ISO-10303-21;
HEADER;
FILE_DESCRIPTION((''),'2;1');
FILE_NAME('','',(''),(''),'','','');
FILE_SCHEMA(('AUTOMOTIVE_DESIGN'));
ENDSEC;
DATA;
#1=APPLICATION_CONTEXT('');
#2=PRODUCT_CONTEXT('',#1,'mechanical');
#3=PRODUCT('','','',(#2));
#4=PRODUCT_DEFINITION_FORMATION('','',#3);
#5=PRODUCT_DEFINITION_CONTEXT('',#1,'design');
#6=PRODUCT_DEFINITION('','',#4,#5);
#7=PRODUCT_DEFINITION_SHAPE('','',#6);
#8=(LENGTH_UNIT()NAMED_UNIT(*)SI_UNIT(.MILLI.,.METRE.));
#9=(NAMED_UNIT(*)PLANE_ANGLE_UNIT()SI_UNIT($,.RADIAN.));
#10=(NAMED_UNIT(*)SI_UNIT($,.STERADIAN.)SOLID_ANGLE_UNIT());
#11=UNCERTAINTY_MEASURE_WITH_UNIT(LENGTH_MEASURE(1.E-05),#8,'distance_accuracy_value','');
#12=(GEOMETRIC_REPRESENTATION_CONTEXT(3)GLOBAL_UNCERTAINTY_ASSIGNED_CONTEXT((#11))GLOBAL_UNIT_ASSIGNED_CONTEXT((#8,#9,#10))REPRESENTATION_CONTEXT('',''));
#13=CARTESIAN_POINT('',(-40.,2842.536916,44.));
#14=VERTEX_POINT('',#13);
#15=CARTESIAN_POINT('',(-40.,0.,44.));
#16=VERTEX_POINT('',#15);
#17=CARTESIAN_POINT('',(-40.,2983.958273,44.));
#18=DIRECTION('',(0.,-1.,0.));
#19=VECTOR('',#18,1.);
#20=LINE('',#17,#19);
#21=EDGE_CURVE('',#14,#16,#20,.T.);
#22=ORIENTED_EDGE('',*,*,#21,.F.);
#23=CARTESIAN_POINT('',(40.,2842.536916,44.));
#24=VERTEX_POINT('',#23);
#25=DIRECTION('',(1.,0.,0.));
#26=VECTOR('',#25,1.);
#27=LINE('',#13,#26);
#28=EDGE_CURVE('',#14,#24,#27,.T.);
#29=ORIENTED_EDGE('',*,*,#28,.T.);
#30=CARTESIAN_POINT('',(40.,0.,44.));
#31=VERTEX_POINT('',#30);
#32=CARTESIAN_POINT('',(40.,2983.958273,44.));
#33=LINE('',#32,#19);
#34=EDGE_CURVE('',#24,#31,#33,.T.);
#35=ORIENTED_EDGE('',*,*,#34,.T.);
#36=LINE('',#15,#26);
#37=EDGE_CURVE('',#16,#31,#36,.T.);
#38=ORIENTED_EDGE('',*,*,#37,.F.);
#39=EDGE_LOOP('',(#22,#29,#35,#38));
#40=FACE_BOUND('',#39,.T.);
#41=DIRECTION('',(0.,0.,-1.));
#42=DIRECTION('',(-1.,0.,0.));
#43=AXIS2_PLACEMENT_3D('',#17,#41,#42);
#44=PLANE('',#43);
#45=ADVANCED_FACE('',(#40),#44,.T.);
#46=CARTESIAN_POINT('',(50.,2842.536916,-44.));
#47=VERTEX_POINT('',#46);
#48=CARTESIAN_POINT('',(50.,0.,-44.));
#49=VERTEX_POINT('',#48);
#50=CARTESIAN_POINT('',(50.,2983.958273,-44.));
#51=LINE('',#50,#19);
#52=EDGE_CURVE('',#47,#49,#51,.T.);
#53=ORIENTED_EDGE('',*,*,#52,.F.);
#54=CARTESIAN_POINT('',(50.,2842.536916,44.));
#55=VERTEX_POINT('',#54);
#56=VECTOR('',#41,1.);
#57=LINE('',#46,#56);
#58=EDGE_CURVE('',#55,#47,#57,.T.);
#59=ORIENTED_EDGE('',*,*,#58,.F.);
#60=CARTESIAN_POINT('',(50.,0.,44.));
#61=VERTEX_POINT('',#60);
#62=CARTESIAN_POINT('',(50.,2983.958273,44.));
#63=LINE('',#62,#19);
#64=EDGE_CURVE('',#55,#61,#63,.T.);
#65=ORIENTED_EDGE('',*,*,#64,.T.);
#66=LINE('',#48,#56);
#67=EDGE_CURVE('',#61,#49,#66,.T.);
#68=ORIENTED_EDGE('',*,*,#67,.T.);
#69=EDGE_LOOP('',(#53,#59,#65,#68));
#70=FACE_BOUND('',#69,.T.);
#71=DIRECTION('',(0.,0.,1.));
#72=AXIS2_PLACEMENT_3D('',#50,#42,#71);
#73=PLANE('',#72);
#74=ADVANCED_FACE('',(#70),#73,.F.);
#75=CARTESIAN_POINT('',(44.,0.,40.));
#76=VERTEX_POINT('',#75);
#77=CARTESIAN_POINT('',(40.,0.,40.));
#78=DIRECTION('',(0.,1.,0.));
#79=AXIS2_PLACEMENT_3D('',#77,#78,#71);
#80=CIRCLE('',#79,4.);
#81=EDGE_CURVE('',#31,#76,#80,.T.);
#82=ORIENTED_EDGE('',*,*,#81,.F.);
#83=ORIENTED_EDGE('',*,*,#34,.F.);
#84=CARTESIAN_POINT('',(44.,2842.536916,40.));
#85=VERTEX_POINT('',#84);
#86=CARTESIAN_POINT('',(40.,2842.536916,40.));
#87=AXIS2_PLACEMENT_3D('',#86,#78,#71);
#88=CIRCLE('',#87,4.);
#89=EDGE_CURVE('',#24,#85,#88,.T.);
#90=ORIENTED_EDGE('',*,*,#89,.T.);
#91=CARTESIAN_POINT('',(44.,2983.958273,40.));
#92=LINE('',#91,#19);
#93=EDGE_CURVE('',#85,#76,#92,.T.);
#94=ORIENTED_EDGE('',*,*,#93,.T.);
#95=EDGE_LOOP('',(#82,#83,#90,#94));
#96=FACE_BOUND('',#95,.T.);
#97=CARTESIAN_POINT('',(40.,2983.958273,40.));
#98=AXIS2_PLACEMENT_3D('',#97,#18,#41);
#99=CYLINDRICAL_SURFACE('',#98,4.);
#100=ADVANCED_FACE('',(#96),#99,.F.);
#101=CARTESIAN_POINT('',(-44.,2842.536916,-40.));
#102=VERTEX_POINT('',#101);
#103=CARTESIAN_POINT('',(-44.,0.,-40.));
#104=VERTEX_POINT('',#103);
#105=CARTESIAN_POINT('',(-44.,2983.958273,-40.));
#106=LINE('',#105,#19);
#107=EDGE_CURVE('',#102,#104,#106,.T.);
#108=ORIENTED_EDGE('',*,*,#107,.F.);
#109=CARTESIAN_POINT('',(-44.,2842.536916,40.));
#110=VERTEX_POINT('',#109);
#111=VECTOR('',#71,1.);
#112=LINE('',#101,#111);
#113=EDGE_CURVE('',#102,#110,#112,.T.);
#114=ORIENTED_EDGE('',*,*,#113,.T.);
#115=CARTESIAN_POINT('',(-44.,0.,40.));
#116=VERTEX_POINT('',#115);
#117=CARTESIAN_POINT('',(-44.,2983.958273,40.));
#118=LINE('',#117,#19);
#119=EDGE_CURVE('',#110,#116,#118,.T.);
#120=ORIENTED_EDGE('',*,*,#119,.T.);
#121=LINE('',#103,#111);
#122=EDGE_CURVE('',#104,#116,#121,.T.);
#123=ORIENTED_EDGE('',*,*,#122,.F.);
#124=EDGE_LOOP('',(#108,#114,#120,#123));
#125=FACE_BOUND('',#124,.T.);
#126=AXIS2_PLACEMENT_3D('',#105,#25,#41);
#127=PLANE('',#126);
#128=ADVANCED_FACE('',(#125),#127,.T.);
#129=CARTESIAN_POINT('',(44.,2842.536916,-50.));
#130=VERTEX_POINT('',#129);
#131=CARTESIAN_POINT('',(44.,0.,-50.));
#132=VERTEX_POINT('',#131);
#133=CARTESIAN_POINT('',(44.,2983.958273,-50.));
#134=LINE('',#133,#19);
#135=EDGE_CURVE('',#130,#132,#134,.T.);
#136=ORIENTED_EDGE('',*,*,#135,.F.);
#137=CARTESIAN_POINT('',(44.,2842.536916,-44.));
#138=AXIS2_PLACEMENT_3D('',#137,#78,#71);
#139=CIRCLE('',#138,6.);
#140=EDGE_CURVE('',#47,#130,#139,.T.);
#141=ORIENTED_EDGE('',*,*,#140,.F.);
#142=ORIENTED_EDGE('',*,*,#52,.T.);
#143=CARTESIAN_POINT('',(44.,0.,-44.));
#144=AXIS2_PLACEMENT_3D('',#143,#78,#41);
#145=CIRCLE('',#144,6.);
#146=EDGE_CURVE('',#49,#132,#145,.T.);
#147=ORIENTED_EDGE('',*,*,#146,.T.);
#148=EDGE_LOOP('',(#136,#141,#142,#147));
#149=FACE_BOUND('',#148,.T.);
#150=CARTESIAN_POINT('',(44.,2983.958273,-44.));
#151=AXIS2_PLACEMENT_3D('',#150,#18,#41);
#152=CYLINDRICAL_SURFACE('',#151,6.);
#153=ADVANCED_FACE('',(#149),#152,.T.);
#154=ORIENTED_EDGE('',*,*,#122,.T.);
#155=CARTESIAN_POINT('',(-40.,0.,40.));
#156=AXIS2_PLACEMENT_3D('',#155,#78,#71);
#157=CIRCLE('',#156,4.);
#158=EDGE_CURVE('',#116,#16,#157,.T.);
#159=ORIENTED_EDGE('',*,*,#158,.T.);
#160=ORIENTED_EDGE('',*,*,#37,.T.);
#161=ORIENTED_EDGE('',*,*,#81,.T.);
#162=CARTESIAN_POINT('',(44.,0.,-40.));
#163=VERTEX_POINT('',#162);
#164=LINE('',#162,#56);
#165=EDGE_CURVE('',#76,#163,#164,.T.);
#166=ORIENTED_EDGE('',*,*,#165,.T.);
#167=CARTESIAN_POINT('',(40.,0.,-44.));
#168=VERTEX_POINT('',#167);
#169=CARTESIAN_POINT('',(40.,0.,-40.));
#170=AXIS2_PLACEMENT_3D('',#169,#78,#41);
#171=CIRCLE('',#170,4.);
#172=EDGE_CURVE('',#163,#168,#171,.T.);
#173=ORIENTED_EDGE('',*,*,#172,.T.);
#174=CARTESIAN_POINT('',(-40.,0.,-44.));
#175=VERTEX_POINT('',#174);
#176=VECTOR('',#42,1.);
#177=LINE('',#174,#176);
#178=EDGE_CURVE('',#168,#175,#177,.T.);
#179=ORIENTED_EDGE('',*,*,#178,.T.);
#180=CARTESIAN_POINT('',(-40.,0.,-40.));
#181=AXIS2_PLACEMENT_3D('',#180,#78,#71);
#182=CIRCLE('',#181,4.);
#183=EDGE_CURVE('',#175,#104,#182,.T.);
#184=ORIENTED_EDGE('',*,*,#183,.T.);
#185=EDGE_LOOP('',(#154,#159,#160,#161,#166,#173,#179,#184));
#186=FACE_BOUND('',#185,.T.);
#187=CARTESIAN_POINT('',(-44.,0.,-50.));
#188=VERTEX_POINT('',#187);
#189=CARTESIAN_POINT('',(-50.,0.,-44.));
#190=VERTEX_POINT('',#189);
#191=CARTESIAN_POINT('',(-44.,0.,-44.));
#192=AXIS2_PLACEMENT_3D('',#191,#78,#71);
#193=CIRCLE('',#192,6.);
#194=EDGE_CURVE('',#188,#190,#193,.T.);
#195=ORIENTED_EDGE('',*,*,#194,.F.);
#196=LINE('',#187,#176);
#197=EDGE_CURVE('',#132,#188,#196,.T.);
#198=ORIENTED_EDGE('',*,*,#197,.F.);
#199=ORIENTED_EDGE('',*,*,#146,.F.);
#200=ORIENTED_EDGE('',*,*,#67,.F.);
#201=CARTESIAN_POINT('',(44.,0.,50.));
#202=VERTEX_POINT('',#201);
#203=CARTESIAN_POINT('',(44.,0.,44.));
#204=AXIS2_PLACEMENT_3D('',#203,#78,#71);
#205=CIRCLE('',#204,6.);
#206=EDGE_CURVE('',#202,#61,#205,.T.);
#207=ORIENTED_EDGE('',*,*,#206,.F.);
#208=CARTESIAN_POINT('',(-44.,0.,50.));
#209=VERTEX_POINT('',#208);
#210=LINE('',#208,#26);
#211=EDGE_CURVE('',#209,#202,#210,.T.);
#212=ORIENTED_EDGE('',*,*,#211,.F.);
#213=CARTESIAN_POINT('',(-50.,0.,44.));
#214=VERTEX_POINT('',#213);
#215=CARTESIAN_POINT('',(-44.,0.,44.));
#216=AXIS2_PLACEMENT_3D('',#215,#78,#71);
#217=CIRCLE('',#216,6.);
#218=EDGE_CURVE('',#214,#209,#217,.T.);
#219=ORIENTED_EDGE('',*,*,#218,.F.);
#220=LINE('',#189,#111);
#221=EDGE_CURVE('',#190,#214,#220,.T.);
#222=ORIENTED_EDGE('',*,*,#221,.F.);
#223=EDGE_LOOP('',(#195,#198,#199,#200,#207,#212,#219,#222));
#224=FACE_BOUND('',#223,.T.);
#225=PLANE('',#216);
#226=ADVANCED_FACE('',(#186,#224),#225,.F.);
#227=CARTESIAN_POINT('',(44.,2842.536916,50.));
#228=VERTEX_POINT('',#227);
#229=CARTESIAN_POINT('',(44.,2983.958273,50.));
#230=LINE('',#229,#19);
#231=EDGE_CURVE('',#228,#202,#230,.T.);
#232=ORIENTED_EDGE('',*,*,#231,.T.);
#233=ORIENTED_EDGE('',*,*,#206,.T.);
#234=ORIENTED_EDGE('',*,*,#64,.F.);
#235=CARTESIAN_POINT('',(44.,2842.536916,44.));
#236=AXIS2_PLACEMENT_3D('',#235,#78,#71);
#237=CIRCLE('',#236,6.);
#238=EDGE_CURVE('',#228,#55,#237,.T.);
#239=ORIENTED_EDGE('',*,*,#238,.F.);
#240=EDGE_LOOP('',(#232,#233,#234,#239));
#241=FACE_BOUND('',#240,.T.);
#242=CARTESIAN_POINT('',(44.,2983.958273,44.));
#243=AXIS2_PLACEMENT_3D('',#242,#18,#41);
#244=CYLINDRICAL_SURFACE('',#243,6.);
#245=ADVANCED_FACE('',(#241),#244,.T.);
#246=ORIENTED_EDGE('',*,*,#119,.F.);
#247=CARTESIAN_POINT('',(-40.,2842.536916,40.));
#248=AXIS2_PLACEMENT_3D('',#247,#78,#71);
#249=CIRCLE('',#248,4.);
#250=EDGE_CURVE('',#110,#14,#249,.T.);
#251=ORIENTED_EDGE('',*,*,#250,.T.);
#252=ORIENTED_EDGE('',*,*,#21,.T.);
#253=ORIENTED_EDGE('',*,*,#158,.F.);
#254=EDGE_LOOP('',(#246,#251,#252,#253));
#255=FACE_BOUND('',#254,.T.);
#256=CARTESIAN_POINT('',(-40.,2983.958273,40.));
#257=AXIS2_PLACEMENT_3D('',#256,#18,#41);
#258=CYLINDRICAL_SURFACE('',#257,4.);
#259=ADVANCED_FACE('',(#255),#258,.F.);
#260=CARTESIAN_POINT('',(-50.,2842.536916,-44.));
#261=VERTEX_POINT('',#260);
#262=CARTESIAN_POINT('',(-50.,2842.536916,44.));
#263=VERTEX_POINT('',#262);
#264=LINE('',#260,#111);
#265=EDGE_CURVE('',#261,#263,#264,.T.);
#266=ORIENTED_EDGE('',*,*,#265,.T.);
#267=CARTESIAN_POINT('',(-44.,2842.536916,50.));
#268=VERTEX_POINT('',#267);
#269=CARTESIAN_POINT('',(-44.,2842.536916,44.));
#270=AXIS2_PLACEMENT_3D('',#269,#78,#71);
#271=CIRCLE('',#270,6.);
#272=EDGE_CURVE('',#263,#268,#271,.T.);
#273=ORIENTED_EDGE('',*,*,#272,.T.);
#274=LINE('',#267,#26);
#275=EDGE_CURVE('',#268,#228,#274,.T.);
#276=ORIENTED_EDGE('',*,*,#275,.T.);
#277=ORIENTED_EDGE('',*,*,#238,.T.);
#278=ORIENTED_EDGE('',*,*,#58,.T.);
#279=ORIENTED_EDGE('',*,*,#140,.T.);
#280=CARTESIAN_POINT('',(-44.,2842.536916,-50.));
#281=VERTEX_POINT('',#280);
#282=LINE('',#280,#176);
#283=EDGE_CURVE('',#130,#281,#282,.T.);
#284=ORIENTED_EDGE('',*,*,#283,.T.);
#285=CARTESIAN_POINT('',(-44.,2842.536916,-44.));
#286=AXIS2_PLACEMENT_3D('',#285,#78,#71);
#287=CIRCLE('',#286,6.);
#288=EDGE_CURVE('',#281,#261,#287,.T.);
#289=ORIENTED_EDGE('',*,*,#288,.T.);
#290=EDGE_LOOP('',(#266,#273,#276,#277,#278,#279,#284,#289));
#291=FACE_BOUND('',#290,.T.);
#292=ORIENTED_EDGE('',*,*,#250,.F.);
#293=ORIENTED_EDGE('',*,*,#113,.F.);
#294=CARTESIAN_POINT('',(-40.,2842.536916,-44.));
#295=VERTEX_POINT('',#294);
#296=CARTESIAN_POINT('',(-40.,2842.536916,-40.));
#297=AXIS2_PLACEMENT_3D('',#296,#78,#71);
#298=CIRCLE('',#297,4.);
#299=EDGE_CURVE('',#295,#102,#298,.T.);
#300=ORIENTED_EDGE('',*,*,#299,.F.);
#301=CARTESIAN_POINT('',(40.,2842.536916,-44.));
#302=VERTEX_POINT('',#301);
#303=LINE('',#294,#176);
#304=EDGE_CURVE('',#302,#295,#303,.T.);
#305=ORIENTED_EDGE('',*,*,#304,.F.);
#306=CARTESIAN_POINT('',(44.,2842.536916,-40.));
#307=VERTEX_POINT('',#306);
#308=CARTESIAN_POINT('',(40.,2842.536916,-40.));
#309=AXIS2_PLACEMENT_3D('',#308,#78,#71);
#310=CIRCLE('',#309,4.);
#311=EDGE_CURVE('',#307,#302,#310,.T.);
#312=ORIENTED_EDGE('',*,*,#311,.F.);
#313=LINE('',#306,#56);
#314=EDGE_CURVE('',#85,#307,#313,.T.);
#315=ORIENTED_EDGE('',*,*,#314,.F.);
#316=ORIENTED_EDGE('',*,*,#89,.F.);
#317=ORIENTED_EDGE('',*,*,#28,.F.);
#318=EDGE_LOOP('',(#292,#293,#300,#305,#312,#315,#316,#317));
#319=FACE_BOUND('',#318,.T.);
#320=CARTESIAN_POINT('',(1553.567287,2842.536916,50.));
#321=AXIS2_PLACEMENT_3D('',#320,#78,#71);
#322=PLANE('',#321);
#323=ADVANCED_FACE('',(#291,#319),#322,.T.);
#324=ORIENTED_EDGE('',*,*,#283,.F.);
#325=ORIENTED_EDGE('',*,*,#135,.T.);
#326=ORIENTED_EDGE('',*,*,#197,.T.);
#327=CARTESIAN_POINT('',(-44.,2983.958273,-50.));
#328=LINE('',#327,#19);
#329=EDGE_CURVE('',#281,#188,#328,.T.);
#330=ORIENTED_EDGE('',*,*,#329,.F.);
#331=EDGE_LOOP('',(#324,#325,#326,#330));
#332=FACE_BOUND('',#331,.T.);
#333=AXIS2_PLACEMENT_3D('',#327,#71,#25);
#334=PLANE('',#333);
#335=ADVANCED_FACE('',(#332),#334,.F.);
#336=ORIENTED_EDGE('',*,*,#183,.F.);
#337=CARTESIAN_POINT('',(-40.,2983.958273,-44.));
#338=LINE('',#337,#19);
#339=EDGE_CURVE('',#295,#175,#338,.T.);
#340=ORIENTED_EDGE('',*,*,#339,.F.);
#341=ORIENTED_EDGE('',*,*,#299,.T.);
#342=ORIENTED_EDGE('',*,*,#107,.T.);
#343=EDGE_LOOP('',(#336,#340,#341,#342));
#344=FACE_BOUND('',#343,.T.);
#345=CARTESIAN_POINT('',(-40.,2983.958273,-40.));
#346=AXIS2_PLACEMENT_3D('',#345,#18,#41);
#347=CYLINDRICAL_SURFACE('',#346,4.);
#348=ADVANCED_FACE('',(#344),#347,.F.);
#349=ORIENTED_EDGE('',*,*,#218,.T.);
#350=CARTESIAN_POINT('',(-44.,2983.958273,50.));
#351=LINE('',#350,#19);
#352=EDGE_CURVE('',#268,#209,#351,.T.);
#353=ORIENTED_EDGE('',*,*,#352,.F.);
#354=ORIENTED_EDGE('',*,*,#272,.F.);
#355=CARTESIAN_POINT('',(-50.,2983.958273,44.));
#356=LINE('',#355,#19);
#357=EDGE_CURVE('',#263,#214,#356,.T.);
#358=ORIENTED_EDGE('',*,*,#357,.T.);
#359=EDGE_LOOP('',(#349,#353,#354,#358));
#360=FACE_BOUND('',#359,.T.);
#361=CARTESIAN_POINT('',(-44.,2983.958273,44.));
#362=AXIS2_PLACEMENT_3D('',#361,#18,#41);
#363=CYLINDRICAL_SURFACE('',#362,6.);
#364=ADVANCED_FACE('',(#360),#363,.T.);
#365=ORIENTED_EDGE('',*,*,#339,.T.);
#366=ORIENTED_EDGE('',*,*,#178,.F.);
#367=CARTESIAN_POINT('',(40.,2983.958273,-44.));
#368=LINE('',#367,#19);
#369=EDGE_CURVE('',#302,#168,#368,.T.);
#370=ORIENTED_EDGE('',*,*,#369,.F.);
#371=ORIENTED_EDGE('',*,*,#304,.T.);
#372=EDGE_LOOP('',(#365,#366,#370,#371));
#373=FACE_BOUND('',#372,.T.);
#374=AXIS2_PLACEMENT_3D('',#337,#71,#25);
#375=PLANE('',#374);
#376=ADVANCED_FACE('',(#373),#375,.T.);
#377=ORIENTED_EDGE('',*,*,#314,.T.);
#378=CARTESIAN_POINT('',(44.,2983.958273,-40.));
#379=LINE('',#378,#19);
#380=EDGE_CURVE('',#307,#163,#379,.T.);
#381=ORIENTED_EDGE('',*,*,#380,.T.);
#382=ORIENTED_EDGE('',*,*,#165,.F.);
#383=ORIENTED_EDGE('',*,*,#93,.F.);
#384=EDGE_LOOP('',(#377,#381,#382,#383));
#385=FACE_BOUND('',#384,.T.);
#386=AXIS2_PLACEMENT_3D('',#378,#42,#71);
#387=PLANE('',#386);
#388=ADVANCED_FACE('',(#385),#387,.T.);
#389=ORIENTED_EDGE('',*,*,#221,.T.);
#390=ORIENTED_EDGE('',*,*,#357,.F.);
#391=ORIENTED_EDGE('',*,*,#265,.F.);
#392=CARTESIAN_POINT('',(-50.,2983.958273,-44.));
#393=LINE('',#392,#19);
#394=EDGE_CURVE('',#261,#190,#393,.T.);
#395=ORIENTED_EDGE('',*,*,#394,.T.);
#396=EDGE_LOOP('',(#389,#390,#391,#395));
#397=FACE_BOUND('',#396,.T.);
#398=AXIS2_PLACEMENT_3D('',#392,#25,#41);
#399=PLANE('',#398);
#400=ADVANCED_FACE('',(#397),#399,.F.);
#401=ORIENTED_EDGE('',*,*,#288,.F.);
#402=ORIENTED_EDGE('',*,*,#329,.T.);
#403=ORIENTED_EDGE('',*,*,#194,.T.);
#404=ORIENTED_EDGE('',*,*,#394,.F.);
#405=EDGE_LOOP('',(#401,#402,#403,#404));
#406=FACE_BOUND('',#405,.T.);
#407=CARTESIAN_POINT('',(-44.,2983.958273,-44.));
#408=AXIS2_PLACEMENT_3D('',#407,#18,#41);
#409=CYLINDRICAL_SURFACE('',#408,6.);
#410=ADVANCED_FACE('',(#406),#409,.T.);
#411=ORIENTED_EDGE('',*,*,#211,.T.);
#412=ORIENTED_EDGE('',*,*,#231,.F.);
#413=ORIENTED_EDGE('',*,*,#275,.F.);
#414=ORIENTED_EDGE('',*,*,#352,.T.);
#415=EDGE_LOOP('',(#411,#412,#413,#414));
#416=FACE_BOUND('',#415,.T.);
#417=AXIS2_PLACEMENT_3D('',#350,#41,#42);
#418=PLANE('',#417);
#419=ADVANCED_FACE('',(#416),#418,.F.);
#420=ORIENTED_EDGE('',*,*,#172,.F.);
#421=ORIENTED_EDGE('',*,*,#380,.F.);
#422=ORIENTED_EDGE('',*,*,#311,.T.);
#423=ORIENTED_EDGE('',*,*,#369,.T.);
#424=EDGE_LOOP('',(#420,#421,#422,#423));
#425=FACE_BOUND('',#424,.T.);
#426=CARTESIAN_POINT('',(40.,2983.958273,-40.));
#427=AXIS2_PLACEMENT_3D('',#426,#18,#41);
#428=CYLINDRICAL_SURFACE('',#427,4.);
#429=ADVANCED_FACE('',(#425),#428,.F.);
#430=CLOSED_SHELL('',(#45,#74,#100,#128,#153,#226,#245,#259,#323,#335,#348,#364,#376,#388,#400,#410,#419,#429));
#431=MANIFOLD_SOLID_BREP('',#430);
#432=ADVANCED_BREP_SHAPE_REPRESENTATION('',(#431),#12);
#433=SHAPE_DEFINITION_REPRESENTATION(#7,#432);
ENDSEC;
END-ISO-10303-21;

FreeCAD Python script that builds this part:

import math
import FreeCAD as App
import Part
import Sketcher
from FreeCAD import Vector
Q = App.Units.Quantity

doc = App.newDocument("Part")
params = doc.addObject("Spreadsheet::Sheet", "Params")
for row, (alias, value) in enumerate([
    ("sketch1_radius", "6 mm"),
    ("sketch1_radius2", "4 mm"),
    ("sketch1_width", "88 mm"),
    ("pad1_length", "2842.536916 mm"),
], start=1):
    params.set(f"A{row}", alias)
    params.set(f"B{row}", "=" + value)
    params.setAlias(f"B{row}", alias)

body = doc.addObject("PartDesign::Body", "Body")

sketch1 = body.newObject("Sketcher::SketchObject", "Sketch")
sketch1.AttachmentSupport = (doc.getObject("XZ_Plane"), [""])
sketch1.MapMode = "FlatFace"
sketch1.addGeometry(Part.LineSegment(Vector(44, -50, 0), Vector(-44, -50, 0)), False)
sketch1.addGeometry(Part.ArcOfCircle(Part.Circle(Vector(-44, -44, 0), Vector(0, 0, 1), 6), math.radians(180), math.radians(270)), False)
sketch1.addGeometry(Part.LineSegment(Vector(-50, -44, 0), Vector(-50, 44, 0)), False)
sketch1.addGeometry(Part.ArcOfCircle(Part.Circle(Vector(-44, 44, 0), Vector(0, 0, 1), 6), math.radians(90), math.radians(180)), False)
sketch1.addGeometry(Part.LineSegment(Vector(-44, 50, 0), Vector(44, 50, 0)), False)
sketch1.addGeometry(Part.ArcOfCircle(Part.Circle(Vector(44, 44, 0), Vector(0, 0, 1), 6), math.radians(0), math.radians(90)), False)
sketch1.addGeometry(Part.LineSegment(Vector(50, 44, 0), Vector(50, -44, 0)), False)
sketch1.addGeometry(Part.ArcOfCircle(Part.Circle(Vector(44, -44, 0), Vector(0, 0, 1), 6), math.radians(-90), math.radians(0)), False)
sketch1.addGeometry(Part.LineSegment(Vector(-40, -44, 0), Vector(40, -44, 0)), False)
sketch1.addGeometry(Part.ArcOfCircle(Part.Circle(Vector(40, -40, 0), Vector(0, 0, 1), 4), math.radians(-90), math.radians(0)), False)
sketch1.addGeometry(Part.LineSegment(Vector(44, -40, 0), Vector(44, 40, 0)), False)
sketch1.addGeometry(Part.ArcOfCircle(Part.Circle(Vector(40, 40, 0), Vector(0, 0, 1), 4), math.radians(0), math.radians(90)), False)
sketch1.addGeometry(Part.LineSegment(Vector(40, 44, 0), Vector(-40, 44, 0)), False)
sketch1.addGeometry(Part.ArcOfCircle(Part.Circle(Vector(-40, 40, 0), Vector(0, 0, 1), 4), math.radians(90), math.radians(180)), False)
sketch1.addGeometry(Part.LineSegment(Vector(-44, 40, 0), Vector(-44, -40, 0)), False)
sketch1.addGeometry(Part.ArcOfCircle(Part.Circle(Vector(-40, -40, 0), Vector(0, 0, 1), 4), math.radians(180), math.radians(270)), False)
sketch1.addConstraint(Sketcher.Constraint("Tangent", 0, 2, 1, 2))
sketch1.addConstraint(Sketcher.Constraint("Tangent", 1, 1, 2, 1))
sketch1.addConstraint(Sketcher.Constraint("Tangent", 2, 2, 3, 2))
sketch1.addConstraint(Sketcher.Constraint("Tangent", 3, 1, 4, 1))
sketch1.addConstraint(Sketcher.Constraint("Tangent", 4, 2, 5, 2))
sketch1.addConstraint(Sketcher.Constraint("Tangent", 5, 1, 6, 1))
sketch1.addConstraint(Sketcher.Constraint("Tangent", 6, 2, 7, 2))
sketch1.addConstraint(Sketcher.Constraint("Tangent", 7, 1, 0, 1))
sketch1.addConstraint(Sketcher.Constraint("Tangent", 8, 2, 9, 1))
sketch1.addConstraint(Sketcher.Constraint("Tangent", 9, 2, 10, 1))
sketch1.addConstraint(Sketcher.Constraint("Tangent", 10, 2, 11, 1))
sketch1.addConstraint(Sketcher.Constraint("Tangent", 11, 2, 12, 1))
sketch1.addConstraint(Sketcher.Constraint("Tangent", 12, 2, 13, 1))
sketch1.addConstraint(Sketcher.Constraint("Tangent", 13, 2, 14, 1))
sketch1.addConstraint(Sketcher.Constraint("Tangent", 14, 2, 15, 1))
sketch1.addConstraint(Sketcher.Constraint("Tangent", 15, 2, 8, 1))
sketch1.addConstraint(Sketcher.Constraint("Horizontal", 0))
sketch1.addConstraint(Sketcher.Constraint("Vertical", 2))
sketch1.addConstraint(Sketcher.Constraint("Horizontal", 4))
sketch1.addConstraint(Sketcher.Constraint("Vertical", 6))
sketch1.addConstraint(Sketcher.Constraint("Horizontal", 8))
sketch1.addConstraint(Sketcher.Constraint("Vertical", 10))
sketch1.addConstraint(Sketcher.Constraint("Horizontal", 12))
sketch1.addConstraint(Sketcher.Constraint("Vertical", 14))
sketch1.addConstraint(Sketcher.Constraint("Equal", 1, 3))
sketch1.addConstraint(Sketcher.Constraint("Equal", 3, 5))
sketch1.addConstraint(Sketcher.Constraint("Equal", 5, 7))
sketch1.addConstraint(Sketcher.Constraint("Equal", 9, 11))
sketch1.addConstraint(Sketcher.Constraint("Equal", 11, 13))
sketch1.addConstraint(Sketcher.Constraint("Equal", 13, 15))
sketch1.addConstraint(Sketcher.Constraint("Symmetric", 1, 3, 5, 3, -1, 1))
sketch1.addConstraint(Sketcher.Constraint("Symmetric", 9, 3, 13, 3, -1, 1))
sketch1.addConstraint(Sketcher.Constraint("Horizontal", 6, 2, 8, 2))
sketch1.addConstraint(Sketcher.Constraint("Vertical", 7, 1, 9, 2))
sketch1.addConstraint(Sketcher.Constraint("Equal", 4, 2))
sketch1.addConstraint(Sketcher.Constraint("Radius", 1, Q("6 mm")))
sketch1.addConstraint(Sketcher.Constraint("Radius", 9, Q("4 mm")))
sketch1.addConstraint(Sketcher.Constraint("DistanceX", 0, 2, 0, 1, Q("88 mm")))
sketch1.setExpression("Constraints[35]", "Params.sketch1_radius")
sketch1.setExpression("Constraints[36]", "Params.sketch1_radius2")
sketch1.setExpression("Constraints[37]", "Params.sketch1_width")
pad1 = body.newObject("PartDesign::Pad", "Pad")
pad1.Profile = sketch1
pad1.setExpression("Length", "Params.pad1_length")
pad1.Reversed = True

doc.recompute()
